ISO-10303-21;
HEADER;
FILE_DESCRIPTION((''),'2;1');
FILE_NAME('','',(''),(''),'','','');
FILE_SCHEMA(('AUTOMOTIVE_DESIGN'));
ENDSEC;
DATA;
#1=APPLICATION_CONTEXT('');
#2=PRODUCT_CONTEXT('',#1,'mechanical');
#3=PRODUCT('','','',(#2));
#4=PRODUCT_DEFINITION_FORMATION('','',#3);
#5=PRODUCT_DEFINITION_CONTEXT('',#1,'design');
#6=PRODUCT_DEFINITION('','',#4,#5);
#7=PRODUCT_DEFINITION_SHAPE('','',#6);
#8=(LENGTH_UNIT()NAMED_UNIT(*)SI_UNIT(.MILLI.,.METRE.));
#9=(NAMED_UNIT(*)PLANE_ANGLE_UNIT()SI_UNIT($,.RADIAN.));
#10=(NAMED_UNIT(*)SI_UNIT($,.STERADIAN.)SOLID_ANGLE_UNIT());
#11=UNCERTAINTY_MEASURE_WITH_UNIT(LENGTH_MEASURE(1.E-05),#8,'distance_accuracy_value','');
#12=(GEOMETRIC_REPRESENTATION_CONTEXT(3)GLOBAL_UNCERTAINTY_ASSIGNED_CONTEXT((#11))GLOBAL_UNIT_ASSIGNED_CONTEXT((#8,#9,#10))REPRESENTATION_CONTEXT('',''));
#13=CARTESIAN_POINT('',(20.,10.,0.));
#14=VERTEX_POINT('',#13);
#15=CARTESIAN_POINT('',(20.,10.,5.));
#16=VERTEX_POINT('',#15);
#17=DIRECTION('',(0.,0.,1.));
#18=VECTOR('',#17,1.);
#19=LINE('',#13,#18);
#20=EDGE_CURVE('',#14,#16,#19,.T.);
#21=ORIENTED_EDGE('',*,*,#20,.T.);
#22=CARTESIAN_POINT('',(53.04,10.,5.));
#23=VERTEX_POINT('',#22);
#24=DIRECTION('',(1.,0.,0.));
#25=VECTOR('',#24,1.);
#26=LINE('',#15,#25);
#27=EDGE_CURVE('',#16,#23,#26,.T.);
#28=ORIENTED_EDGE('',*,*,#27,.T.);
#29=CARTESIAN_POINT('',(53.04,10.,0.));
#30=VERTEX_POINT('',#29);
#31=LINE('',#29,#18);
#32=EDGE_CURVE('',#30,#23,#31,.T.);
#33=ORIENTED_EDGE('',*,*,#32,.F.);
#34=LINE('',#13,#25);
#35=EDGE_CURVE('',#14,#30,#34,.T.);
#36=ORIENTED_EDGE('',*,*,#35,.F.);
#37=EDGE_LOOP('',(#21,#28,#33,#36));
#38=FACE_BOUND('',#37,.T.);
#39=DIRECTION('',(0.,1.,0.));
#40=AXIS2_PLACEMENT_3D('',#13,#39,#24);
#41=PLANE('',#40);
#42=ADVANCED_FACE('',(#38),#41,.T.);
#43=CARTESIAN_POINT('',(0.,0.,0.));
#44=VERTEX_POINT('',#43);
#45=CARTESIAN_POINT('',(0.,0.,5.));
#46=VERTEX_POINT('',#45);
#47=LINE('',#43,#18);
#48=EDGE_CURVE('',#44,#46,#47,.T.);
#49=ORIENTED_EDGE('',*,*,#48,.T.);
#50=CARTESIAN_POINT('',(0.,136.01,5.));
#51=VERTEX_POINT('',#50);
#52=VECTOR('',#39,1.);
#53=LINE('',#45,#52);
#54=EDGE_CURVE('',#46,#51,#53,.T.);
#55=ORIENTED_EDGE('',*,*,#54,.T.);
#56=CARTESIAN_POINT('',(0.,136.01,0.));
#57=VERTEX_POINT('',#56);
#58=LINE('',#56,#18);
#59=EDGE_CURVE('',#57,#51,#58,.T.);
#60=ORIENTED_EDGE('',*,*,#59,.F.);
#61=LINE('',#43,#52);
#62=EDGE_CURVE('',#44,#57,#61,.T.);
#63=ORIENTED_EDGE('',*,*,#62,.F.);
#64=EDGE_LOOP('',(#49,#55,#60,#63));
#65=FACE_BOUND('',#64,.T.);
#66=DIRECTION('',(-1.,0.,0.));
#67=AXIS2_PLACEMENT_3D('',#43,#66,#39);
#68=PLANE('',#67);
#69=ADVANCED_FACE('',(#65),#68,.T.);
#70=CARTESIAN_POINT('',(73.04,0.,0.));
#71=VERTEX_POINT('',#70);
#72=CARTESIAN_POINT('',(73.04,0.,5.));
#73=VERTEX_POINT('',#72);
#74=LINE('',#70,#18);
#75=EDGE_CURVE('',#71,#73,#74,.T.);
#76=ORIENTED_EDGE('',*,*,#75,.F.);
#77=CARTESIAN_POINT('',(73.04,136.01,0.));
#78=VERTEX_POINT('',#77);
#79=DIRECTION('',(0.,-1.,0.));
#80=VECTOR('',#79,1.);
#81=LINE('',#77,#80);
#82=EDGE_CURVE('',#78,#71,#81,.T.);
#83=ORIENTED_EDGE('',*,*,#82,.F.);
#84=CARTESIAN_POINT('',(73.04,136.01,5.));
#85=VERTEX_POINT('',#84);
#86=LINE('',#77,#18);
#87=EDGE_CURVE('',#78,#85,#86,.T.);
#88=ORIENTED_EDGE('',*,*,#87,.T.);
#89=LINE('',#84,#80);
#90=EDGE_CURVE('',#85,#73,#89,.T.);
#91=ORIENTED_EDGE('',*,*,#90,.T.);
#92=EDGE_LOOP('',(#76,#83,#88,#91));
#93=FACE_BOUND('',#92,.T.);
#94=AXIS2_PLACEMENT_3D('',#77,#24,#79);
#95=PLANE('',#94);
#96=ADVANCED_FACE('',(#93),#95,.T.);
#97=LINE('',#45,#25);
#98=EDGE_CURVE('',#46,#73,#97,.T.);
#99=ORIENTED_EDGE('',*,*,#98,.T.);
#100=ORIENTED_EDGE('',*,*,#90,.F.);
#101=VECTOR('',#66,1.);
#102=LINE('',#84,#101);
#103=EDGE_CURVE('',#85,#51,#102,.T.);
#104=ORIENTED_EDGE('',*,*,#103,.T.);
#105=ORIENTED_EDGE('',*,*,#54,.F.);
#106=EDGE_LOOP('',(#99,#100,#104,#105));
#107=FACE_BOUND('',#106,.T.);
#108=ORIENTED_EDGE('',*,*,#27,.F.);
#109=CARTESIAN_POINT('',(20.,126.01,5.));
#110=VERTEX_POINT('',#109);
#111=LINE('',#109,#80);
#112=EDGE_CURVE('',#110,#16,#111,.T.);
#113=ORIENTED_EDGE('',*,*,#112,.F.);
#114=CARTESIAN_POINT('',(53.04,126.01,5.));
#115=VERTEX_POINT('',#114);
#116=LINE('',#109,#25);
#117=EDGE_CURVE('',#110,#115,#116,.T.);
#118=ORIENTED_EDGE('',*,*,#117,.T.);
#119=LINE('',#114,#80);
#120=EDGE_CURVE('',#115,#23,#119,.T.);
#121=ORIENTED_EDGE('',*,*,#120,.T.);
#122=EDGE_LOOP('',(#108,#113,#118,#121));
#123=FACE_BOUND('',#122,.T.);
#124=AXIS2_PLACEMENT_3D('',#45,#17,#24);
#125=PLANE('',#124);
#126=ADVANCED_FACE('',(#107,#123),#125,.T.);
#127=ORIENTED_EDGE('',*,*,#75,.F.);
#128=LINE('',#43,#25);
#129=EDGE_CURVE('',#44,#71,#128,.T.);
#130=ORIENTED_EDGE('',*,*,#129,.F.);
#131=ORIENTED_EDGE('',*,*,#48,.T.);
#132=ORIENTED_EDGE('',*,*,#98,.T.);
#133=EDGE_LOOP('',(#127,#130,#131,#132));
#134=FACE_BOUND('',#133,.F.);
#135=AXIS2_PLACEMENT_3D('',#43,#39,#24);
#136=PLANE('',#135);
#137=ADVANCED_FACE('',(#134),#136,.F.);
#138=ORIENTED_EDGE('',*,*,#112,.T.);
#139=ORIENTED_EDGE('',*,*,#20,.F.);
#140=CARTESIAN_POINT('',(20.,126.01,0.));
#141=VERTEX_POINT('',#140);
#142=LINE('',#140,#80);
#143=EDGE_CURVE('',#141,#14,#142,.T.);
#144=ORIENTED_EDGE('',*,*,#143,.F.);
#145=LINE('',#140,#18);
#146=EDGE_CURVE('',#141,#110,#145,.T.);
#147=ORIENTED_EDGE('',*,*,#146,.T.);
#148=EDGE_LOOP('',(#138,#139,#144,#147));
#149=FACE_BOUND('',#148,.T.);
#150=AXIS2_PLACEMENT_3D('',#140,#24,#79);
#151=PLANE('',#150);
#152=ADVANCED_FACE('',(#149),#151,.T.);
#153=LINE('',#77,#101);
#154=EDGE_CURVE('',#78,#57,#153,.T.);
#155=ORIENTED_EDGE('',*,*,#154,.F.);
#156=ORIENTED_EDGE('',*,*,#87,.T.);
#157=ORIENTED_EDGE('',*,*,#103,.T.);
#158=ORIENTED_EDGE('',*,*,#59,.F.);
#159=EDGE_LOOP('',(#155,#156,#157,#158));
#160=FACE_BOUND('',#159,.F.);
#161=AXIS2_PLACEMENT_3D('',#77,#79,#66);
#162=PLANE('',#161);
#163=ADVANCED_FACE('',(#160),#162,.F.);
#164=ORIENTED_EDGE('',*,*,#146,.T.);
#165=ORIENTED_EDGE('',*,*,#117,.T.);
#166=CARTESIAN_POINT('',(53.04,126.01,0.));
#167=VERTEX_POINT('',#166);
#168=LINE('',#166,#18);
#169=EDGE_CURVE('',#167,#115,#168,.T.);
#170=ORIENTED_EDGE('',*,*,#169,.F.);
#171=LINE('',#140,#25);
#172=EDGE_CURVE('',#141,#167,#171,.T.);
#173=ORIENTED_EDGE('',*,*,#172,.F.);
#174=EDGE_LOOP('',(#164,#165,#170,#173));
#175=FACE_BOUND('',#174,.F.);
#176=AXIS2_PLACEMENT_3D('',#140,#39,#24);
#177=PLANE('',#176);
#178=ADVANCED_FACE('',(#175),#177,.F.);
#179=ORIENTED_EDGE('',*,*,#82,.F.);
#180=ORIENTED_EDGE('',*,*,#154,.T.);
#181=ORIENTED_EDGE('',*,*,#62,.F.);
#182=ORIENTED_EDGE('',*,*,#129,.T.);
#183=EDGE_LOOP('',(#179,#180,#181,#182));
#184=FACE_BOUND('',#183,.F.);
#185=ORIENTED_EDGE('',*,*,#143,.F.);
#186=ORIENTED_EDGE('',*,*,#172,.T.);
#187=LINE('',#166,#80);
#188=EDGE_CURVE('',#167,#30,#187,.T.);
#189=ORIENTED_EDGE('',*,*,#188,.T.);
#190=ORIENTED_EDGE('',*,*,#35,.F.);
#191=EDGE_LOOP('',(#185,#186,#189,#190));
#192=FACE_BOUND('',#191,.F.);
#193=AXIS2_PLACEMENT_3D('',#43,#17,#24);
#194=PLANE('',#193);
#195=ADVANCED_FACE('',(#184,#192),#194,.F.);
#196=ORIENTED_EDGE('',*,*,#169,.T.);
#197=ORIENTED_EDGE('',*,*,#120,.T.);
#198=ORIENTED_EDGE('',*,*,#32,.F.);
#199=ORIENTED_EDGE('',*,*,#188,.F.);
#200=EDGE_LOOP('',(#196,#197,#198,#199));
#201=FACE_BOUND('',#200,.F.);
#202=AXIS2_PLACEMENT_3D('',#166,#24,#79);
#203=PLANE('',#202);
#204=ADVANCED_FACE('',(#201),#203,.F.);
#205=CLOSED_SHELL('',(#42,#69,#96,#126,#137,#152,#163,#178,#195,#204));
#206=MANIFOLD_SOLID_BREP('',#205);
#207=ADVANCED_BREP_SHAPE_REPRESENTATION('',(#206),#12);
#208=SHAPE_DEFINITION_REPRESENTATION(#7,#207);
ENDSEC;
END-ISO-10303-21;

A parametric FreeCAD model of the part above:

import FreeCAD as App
import Part
import Sketcher

doc = App.newDocument("Part")
params = doc.addObject("Spreadsheet::Sheet", "Params")
for row, (alias, value) in enumerate([
    ("sketch1_width", "73.04 mm"),
    ("sketch1_width2", "33.04 mm"),
    ("sketch1_height", "136.01 mm"),
    ("sketch1_height2", "116.01 mm"),
    ("pad1_length", "5 mm"),
], start=1):
    params.set(f"A{row}", alias)
    params.set(f"B{row}", "=" + value)
    params.setAlias(f"B{row}", alias)

body = doc.addObject("PartDesign::Body", "Body")

sketch1 = body.newObject("Sketcher::SketchObject", "Sketch")
sketch1.AttachmentSupport = (doc.getObject("XY_Plane"), [""])
sketch1.MapMode = "FlatFace"
sketch1.addGeometry(Part.LineSegment(App.Vector(0, 136, 0), App.Vector(0, 0, 0)), False)
sketch1.addGeometry(Part.LineSegment(App.Vector(0, 0, 0), App.Vector(73, 0, 0)), False)
sketch1.addGeometry(Part.LineSegment(App.Vector(73, 0, 0), App.Vector(73, 136, 0)), False)
sketch1.addGeometry(Part.LineSegment(App.Vector(73, 136, 0), App.Vector(0, 136, 0)), False)
sketch1.addGeometry(Part.LineSegment(App.Vector(20, 10, 0), App.Vector(20, 126, 0)), False)
sketch1.addGeometry(Part.LineSegment(App.Vector(20, 126, 0), App.Vector(53, 126, 0)), False)
sketch1.addGeometry(Part.LineSegment(App.Vector(53, 126, 0), App.Vector(53, 10, 0)), False)
sketch1.addGeometry(Part.LineSegment(App.Vector(53, 10, 0), App.Vector(20, 10, 0)), False)
sketch1.addConstraint(Sketcher.Constraint("Coincident", 0, 2, 1, 1))
sketch1.addConstraint(Sketcher.Constraint("Coincident", 1, 2, 2, 1))
sketch1.addConstraint(Sketcher.Constraint("Coincident", 2, 2, 3, 1))
sketch1.addConstraint(Sketcher.Constraint("Coincident", 3, 2, 0, 1))
sketch1.addConstraint(Sketcher.Constraint("Coincident", 4, 2, 5, 1))
sketch1.addConstraint(Sketcher.Constraint("Coincident", 5, 2, 6, 1))
sketch1.addConstraint(Sketcher.Constraint("Coincident", 6, 2, 7, 1))
sketch1.addConstraint(Sketcher.Constraint("Coincident", 7, 2, 4, 1))
sketch1.addConstraint(Sketcher.Constraint("Vertical", 0))
sketch1.addConstraint(Sketcher.Constraint("Horizontal", 1))
sketch1.addConstraint(Sketcher.Constraint("Vertical", 2))
sketch1.addConstraint(Sketcher.Constraint("Horizontal", 3))
sketch1.addConstraint(Sketcher.Constraint("Vertical", 4))
sketch1.addConstraint(Sketcher.Constraint("Horizontal", 5))
sketch1.addConstraint(Sketcher.Constraint("Vertical", 6))
sketch1.addConstraint(Sketcher.Constraint("Horizontal", 7))
sketch1.addConstraint(Sketcher.Constraint("Coincident", 0, 2, -1, 1))
sketch1.addConstraint(Sketcher.Constraint("DistanceX", 1, 1, 1, 2, 73.04))
sketch1.addConstraint(Sketcher.Constraint("DistanceX", 5, 1, 5, 2, 33.04))
sketch1.addConstraint(Sketcher.Constraint("DistanceY", 0, 2, 0, 1, 136.01))
sketch1.addConstraint(Sketcher.Constraint("DistanceY", 4, 1, 4, 2, 116.01))
sketch1.addConstraint(Sketcher.Constraint("DistanceX", -1, 1, 4, 2, 20.0))
sketch1.addConstraint(Sketcher.Constraint("DistanceY", -1, 1, 6, 2, 10.0))
sketch1.setExpression("Constraints[17]", "Params.sketch1_width")
sketch1.setExpression("Constraints[18]", "Params.sketch1_width2")
sketch1.setExpression("Constraints[19]", "Params.sketch1_height")
sketch1.setExpression("Constraints[20]", "Params.sketch1_height2")
pad1 = body.newObject("PartDesign::Pad", "Pad")
pad1.Profile = sketch1
pad1.setExpression("Length", "Params.pad1_length")

doc.recompute()
